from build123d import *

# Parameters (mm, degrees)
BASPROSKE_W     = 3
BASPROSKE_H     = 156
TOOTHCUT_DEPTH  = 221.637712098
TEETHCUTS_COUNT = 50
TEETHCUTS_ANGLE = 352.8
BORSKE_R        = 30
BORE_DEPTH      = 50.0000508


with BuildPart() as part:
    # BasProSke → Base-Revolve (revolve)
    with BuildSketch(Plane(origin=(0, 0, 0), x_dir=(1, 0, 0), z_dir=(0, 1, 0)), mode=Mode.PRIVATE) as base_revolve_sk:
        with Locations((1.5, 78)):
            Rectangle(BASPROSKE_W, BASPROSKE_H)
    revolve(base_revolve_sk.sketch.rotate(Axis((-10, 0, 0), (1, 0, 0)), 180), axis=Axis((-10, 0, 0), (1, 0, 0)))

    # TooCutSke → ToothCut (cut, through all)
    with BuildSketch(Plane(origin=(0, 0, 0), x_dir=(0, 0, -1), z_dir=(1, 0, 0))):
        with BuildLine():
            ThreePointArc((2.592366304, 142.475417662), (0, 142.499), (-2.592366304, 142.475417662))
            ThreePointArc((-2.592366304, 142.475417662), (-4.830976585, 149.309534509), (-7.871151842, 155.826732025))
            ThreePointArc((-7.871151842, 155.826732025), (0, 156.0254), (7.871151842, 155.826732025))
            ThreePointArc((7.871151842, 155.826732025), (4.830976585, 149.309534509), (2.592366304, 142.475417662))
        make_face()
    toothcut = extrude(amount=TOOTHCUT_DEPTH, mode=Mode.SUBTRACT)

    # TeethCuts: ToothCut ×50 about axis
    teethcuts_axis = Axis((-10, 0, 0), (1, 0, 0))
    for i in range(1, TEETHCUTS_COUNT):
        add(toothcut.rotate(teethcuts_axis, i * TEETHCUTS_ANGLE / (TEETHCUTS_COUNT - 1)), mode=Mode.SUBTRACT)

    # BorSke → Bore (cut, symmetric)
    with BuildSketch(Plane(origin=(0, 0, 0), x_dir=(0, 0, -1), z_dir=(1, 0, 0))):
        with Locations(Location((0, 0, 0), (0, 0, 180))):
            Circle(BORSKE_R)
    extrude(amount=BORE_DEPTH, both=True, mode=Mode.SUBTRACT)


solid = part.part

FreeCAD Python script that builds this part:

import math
import FreeCAD as App
import Part
import Sketcher
from FreeCAD import Vector
Q = App.Units.Quantity


def add_polygon(sketch, points):
    """Adds a closed chain of lines whose ends are joined by coincident constraints."""
    first, n = sketch.GeometryCount, len(points)
    for a, b in zip(points, points[1:] + points[:1]):
        sketch.addGeometry(Part.LineSegment(App.Vector(*a, 0), App.Vector(*b, 0)), False)
    for i in range(n):
        sketch.addConstraint(Sketcher.Constraint("Coincident", first + i, 2, first + (i + 1) % n, 1))

doc = App.newDocument("Part")
body = doc.addObject("PartDesign::Body", "Body")

sketch1 = doc.addObject("Sketcher::SketchObject", "Sketch")
body.addObject(sketch1)
sketch1.AttachmentSupport = (doc.XZ_Plane, [""])
sketch1.MapMode = "FlatFace"
add_polygon(sketch1, [(0, -156), (0, 0), (3, 0), (3, -156)])
sketch1.addConstraint([
    Sketcher.Constraint("Vertical", 0),
    Sketcher.Constraint("Horizontal", 1),
    Sketcher.Constraint("Vertical", 2),
    Sketcher.Constraint("Horizontal", 3),
    Sketcher.Constraint("Coincident", 0, 2, -1, 1),
    Sketcher.Constraint("DistanceX", 1, 1, 1, 2, Q("3 mm")),
    Sketcher.Constraint("DistanceY", 0, 1, 0, 2, Q("156 mm")),
])
revolution = doc.addObject("PartDesign::Revolution", "Revolution")
body.addObject(revolution)
revolution.Profile = sketch1
revolution.ReferenceAxis = (sketch1, ["H_Axis"])
revolution.Angle = 360

sketch2 = doc.addObject("Sketcher::SketchObject", "Sketch001")
body.addObject(sketch2)
sketch2.AttachmentSupport = (doc.YZ_Plane, [""])
sketch2.MapMode = "FlatFace"
sketch2.addGeometry([
    Part.ArcOfCircle(Part.Circle(Vector(0, 0, 0), Vector(0, 0, 1), 142), math.radians(-1.04), math.radians(1.04)),
    Part.ArcOfCircle(Part.Circle(Vector(127, -61, 0), Vector(0, 0, 1), 60), math.radians(61.56), math.radians(75.3)),
    Part.ArcOfCircle(Part.Circle(Vector(0, 0, 0), Vector(0, 0, 1), 156), math.radians(-2.89), math.radians(2.89)),
    Part.ArcOfCircle(Part.Circle(Vector(127, 61, 0), Vector(0, 0, 1), 60), math.radians(-75.3), math.radians(-61.56)),
], False)
sketch2.addConstraint([
    Sketcher.Constraint("Coincident", 0, 1, 1, 2),
    Sketcher.Constraint("Coincident", 1, 1, 2, 1),
    Sketcher.Constraint("Coincident", 2, 2, 3, 2),
    Sketcher.Constraint("Coincident", 3, 1, 0, 2),
    Sketcher.Constraint("Coincident", 0, 3, -1, 1),
    Sketcher.Constraint("Coincident", 2, 3, -1, 1),
    Sketcher.Constraint("Equal", 1, 3),
    Sketcher.Constraint("Symmetric", 1, 3, 3, 3, -1),
    Sketcher.Constraint("Radius", 1, Q("60 mm")),
    Sketcher.Constraint("Radius", 0, Q("142.499 mm")),
    Sketcher.Constraint("Radius", 2, Q("156.025399 mm")),
    Sketcher.Constraint("DistanceY", 1, 1, -1, 1, Q("7.871152 mm")),
    Sketcher.Constraint("DistanceX", 1, 3, 1, 1, Q("28.578028 mm")),
])
pocket1 = doc.addObject("PartDesign::Pocket", "Pocket")
body.addObject(pocket1)
pocket1.Profile = sketch2
pocket1.Type = "ThroughAll"
pocket1.Reversed = True
doc.recompute()

polarpattern = doc.addObject("PartDesign::PolarPattern", "PolarPattern")
body.addObject(polarpattern)
polarpattern.Originals = [pocket1]
polarpattern.Axis = (doc.X_Axis, [""])
polarpattern.Angle = 360
polarpattern.Occurrences = 50
body.Tip = polarpattern

sketch3 = doc.addObject("Sketcher::SketchObject", "Sketch002")
body.addObject(sketch3)
sketch3.AttachmentSupport = (doc.YZ_Plane, [""])
sketch3.MapMode = "FlatFace"
sketch3.addGeometry(Part.Circle(Vector(0, 0, 0), Vector(0, 0, 1), 30), False)
sketch3.addConstraint([
    Sketcher.Constraint("Coincident", 0, 3, -1, 1),
    Sketcher.Constraint("Diameter", 0, Q("60 mm")),
])
pocket2 = doc.addObject("PartDesign::Pocket", "Pocket001")
body.addObject(pocket2)
pocket2.Profile = sketch3
pocket2.Length = 100.000102
pocket2.Midplane = True

doc.recompute()
